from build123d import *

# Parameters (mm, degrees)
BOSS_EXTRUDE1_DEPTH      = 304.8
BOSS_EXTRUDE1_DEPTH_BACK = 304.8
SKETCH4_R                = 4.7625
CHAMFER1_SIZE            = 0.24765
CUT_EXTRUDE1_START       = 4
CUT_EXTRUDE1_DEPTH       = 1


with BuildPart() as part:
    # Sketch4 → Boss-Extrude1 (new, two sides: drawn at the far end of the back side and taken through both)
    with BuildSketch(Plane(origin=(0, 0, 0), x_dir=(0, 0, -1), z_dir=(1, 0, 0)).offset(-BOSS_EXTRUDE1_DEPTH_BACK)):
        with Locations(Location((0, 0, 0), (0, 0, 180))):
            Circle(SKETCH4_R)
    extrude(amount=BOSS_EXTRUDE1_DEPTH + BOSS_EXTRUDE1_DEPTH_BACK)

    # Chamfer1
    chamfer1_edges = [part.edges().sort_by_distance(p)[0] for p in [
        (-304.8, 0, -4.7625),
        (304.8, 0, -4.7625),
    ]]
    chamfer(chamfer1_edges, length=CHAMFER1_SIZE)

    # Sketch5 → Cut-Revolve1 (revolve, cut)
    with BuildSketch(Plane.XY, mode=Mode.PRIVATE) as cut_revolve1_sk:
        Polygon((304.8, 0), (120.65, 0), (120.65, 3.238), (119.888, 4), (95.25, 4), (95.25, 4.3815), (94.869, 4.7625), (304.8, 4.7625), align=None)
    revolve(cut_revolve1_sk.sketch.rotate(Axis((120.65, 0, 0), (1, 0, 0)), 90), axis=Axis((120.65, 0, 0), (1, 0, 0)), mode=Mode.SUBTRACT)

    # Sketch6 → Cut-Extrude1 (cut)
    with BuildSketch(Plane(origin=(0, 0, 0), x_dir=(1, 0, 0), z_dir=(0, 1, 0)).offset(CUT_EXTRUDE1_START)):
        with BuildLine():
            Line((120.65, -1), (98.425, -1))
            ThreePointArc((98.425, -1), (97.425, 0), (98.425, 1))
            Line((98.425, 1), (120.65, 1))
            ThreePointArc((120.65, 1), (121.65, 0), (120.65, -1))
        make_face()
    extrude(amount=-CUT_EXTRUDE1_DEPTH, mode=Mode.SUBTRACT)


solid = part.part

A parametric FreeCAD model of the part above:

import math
import FreeCAD as App
import Part
import Sketcher

V = App.Vector
Q = App.Units.Quantity


def edges_at(feature, points):
    """Names of the edges that pass closest to the given points."""
    edges = feature.Shape.Edges
    near = lambda p: min(range(len(edges)), key=lambda i: edges[i].distToShape(Part.Vertex(*p))[0])
    return sorted({f"Edge{near(p) + 1}" for p in points})


def add_polygon(sketch, points):
    """Adds a closed chain of lines whose ends are joined by coincident constraints."""
    first, n = sketch.GeometryCount, len(points)
    for a, b in zip(points, points[1:] + points[:1]):
        sketch.addGeometry(Part.LineSegment(App.Vector(*a, 0), App.Vector(*b, 0)), False)
    for i in range(n):
        sketch.addConstraint(Sketcher.Constraint("Coincident", first + i, 2, first + (i + 1) % n, 1))

doc = App.newDocument("Part")
body = doc.addObject("PartDesign::Body", "Body")

sketch1 = body.newObject("Sketcher::SketchObject", "Sketch")
sketch1.AttachmentSupport = (doc.getObject("YZ_Plane"), [""])
sketch1.MapMode = "FlatFace"
sketch1.addGeometry(Part.Circle(V(0, 0, 0), V(0, 0, 1), 4.8), False)
sketch1.addConstraint(Sketcher.Constraint("Coincident", 0, 3, -1, 1))
sketch1.addConstraint(Sketcher.Constraint("Diameter", 0, Q("0.375 in")))
pad1 = body.newObject("PartDesign::Pad", "Pad")
pad1.Profile = sketch1
pad1.Type = "TwoLengths"
pad1.Length = Q("12 in")
pad1.Length2 = Q("12 in")
doc.recompute()

chamfer = body.newObject("PartDesign::Chamfer", "Chamfer")
chamfer.Base = (pad1, edges_at(pad1, [(-304.8, 0, -4.763), (304.8, 0, -4.763)]))
chamfer.Size = 0.24765

sketch2 = body.newObject("Sketcher::SketchObject", "Sketch001")
sketch2.AttachmentSupport = (doc.getObject("XY_Plane"), [""])
sketch2.MapMode = "FlatFace"
add_polygon(sketch2, [(120.65, 0), (304.8, 0), (304.8, 4.76), (94.87, 4.76), (95.25, 4.38), (95.25, 4), (119.89, 4), (120.65, 3.24)])
sketch2.addConstraint(Sketcher.Constraint("Horizontal", 0))
sketch2.addConstraint(Sketcher.Constraint("Vertical", 1))
sketch2.addConstraint(Sketcher.Constraint("Horizontal", 2))
sketch2.addConstraint(Sketcher.Constraint("Vertical", 4))
sketch2.addConstraint(Sketcher.Constraint("Horizontal", 5))
sketch2.addConstraint(Sketcher.Constraint("Vertical", 7))
sketch2.addConstraint(Sketcher.Constraint("PointOnObject", 0, 2, -1))
sketch2.addConstraint(Sketcher.Constraint("Parallel", 3, 6))
sketch2.addConstraint(Sketcher.Constraint("DistanceX", -1, 1, 0, 2, Q("12 in")))
sketch2.addConstraint(Sketcher.Constraint("Angle", 3, Q("-45 deg")))
sketch2.addConstraint(Sketcher.Constraint("DistanceX", 4, 2, 6, 2, Q("1 in")))
sketch2.addConstraint(Sketcher.Constraint("DistanceX", 0, 1, 0, 2, Q("7.25 in")))
sketch2.addConstraint(Sketcher.Constraint("DistanceX", 5, 1, 5, 2, Q("0.97 in")))
sketch2.addConstraint(Sketcher.Constraint("DistanceX", 2, 2, 2, 1, Q("8.265 in")))
sketch2.addConstraint(Sketcher.Constraint("DistanceY", 1, 1, 1, 2, Q("0.1875 in")))
sketch2.addConstraint(Sketcher.Constraint("DistanceY", 4, 2, 4, 1, 0.3815))
groove = body.newObject("PartDesign::Groove", "Groove")
groove.Profile = sketch2
groove.ReferenceAxis = (sketch2, ["H_Axis"])
groove.Angle = 360

sketch3 = body.newObject("Sketcher::SketchObject", "Sketch002")
sketch3.AttachmentSupport = (doc.getObject("XZ_Plane"), [""])
sketch3.MapMode = "FlatFace"
sketch3.AttachmentOffset = App.Placement(V(0, 0, -4), App.Rotation())
sketch3.addGeometry(Part.LineSegment(V(98.4, 1, 0), V(120.7, 1, 0)), False)
sketch3.addGeometry(Part.ArcOfCircle(Part.Circle(V(120.7, 0, 0), V(0, 0, 1), 1), math.radians(-90), math.radians(90)), False)
sketch3.addGeometry(Part.LineSegment(V(120.7, -1, 0), V(98.4, -1, 0)), False)
sketch3.addGeometry(Part.ArcOfCircle(Part.Circle(V(98.4, 0, 0), V(0, 0, 1), 1), math.radians(90), math.radians(270)), False)
sketch3.addConstraint(Sketcher.Constraint("Tangent", 0, 2, 1, 2))
sketch3.addConstraint(Sketcher.Constraint("Tangent", 1, 1, 2, 1))
sketch3.addConstraint(Sketcher.Constraint("Tangent", 2, 2, 3, 2))
sketch3.addConstraint(Sketcher.Constraint("Tangent", 3, 1, 0, 1))
sketch3.addConstraint(Sketcher.Constraint("Horizontal", 0))
sketch3.addConstraint(Sketcher.Constraint("Horizontal", 2))
sketch3.addConstraint(Sketcher.Constraint("PointOnObject", 1, 3, -1))
sketch3.addConstraint(Sketcher.Constraint("DistanceX", 0, 1, 0, 2, Q("0.875 in")))
sketch3.addConstraint(Sketcher.Constraint("DistanceX", -1, 1, 1, 3, Q("4.75 in")))
sketch3.addConstraint(Sketcher.Constraint("Radius", 1, 1.0))
pocket1 = body.newObject("PartDesign::Pocket", "Pocket")
pocket1.Profile = sketch3
pocket1.Length = 1
pocket1.Reversed = True

doc.recompute()
